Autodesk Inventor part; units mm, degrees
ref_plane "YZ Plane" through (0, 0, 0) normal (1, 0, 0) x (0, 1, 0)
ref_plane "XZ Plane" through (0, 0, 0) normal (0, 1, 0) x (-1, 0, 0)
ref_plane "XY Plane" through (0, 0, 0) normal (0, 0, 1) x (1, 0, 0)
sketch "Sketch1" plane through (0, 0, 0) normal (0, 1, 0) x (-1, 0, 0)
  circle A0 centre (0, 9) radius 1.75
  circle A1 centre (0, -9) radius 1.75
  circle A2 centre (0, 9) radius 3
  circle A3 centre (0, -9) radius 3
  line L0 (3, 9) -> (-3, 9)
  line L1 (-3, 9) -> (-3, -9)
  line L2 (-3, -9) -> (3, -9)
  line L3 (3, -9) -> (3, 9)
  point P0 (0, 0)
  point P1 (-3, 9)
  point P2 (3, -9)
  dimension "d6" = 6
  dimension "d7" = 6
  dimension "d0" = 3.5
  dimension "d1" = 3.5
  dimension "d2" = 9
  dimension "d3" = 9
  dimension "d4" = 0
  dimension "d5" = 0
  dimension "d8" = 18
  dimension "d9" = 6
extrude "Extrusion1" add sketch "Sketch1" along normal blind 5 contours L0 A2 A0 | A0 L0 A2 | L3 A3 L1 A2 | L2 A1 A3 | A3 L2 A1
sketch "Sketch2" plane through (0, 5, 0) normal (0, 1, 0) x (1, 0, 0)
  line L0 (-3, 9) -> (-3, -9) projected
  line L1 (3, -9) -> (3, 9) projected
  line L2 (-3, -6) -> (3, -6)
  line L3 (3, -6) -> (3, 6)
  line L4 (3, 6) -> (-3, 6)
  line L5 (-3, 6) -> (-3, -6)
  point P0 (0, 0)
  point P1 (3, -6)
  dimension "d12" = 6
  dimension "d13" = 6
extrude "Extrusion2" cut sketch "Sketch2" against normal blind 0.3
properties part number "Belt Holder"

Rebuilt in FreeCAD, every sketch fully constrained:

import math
import FreeCAD as App
import Part
import Sketcher
from FreeCAD import Vector
Q = App.Units.Quantity

doc = App.newDocument("Part")
body = doc.addObject("PartDesign::Body", "Body")

sketch1 = body.newObject("Sketcher::SketchObject", "Sketch")
sketch1.AttachmentSupport = (doc.getObject("XZ_Plane"), [""])
sketch1.MapMode = "FlatFace"
sketch1.addGeometry(Part.ArcOfCircle(Part.Circle(Vector(0, 9, 0), Vector(0, 0, 1), 3), math.radians(0), math.radians(180)), False)
sketch1.addGeometry(Part.LineSegment(Vector(3, 9, 0), Vector(3, -9, 0)), False)
sketch1.addGeometry(Part.ArcOfCircle(Part.Circle(Vector(0, -9, 0), Vector(0, 0, 1), 3), math.radians(180), math.radians(360)), False)
sketch1.addGeometry(Part.LineSegment(Vector(-3, -9, 0), Vector(-3, 9, 0)), False)
sketch1.addGeometry(Part.Circle(Vector(0, 9, 0), Vector(0, 0, 1), 1.8), False)
sketch1.addGeometry(Part.Circle(Vector(0, -9, 0), Vector(0, 0, 1), 1.8), False)
sketch1.addConstraint(Sketcher.Constraint("Tangent", 0, 1, 1, 1))
sketch1.addConstraint(Sketcher.Constraint("Tangent", 1, 2, 2, 2))
sketch1.addConstraint(Sketcher.Constraint("Tangent", 2, 1, 3, 1))
sketch1.addConstraint(Sketcher.Constraint("Tangent", 3, 2, 0, 2))
sketch1.addConstraint(Sketcher.Constraint("Vertical", 1))
sketch1.addConstraint(Sketcher.Constraint("Vertical", 3))
sketch1.addConstraint(Sketcher.Constraint("Coincident", 4, 3, 0, 3))
sketch1.addConstraint(Sketcher.Constraint("Coincident", 5, 3, 2, 3))
sketch1.addConstraint(Sketcher.Constraint("Equal", 4, 5))
sketch1.addConstraint(Sketcher.Constraint("Symmetric", 0, 3, 2, 3, -1, 1))
sketch1.addConstraint(Sketcher.Constraint("Radius", 0, Q("3 mm")))
sketch1.addConstraint(Sketcher.Constraint("Diameter", 4, Q("3.5 mm")))
sketch1.addConstraint(Sketcher.Constraint("DistanceY", 1, 2, 1, 1, Q("18 mm")))
pad1 = body.newObject("PartDesign::Pad", "Pad")
pad1.Profile = sketch1
pad1.Length = 5
pad1.Reversed = True

sketch2 = body.newObject("Sketcher::SketchObject", "Sketch001")
sketch2.AttachmentSupport = (doc.getObject("XZ_Plane"), [""])
sketch2.MapMode = "FlatFace"
sketch2.AttachmentOffset = App.Placement(Vector(0, 0, -5), App.Rotation())
sketch2.addGeometry(Part.LineSegment(Vector(3, -6, 0), Vector(-3, -6, 0)), False)
sketch2.addGeometry(Part.LineSegment(Vector(-3, -6, 0), Vector(-3, 6, 0)), False)
sketch2.addGeometry(Part.LineSegment(Vector(-3, 6, 0), Vector(3, 6, 0)), False)
sketch2.addGeometry(Part.LineSegment(Vector(3, 6, 0), Vector(3, -6, 0)), False)
sketch2.addConstraint(Sketcher.Constraint("Coincident", 0, 2, 1, 1))
sketch2.addConstraint(Sketcher.Constraint("Coincident", 1, 2, 2, 1))
sketch2.addConstraint(Sketcher.Constraint("Coincident", 2, 2, 3, 1))
sketch2.addConstraint(Sketcher.Constraint("Coincident", 3, 2, 0, 1))
sketch2.addConstraint(Sketcher.Constraint("Horizontal", 0))
sketch2.addConstraint(Sketcher.Constraint("Vertical", 1))
sketch2.addConstraint(Sketcher.Constraint("Horizontal", 2))
sketch2.addConstraint(Sketcher.Constraint("Vertical", 3))
sketch2.addConstraint(Sketcher.Constraint("Symmetric", 0, 2, 2, 2, -1, 1))
sketch2.addConstraint(Sketcher.Constraint("DistanceX", 0, 2, 0, 1, Q("6 mm")))
sketch2.addConstraint(Sketcher.Constraint("DistanceY", 0, 2, -1, 1, Q("6 mm")))
pocket1 = body.newObject("PartDesign::Pocket", "Pocket")
pocket1.Profile = sketch2
pocket1.Length = 0.3
pocket1.Reversed = True

doc.recompute()
